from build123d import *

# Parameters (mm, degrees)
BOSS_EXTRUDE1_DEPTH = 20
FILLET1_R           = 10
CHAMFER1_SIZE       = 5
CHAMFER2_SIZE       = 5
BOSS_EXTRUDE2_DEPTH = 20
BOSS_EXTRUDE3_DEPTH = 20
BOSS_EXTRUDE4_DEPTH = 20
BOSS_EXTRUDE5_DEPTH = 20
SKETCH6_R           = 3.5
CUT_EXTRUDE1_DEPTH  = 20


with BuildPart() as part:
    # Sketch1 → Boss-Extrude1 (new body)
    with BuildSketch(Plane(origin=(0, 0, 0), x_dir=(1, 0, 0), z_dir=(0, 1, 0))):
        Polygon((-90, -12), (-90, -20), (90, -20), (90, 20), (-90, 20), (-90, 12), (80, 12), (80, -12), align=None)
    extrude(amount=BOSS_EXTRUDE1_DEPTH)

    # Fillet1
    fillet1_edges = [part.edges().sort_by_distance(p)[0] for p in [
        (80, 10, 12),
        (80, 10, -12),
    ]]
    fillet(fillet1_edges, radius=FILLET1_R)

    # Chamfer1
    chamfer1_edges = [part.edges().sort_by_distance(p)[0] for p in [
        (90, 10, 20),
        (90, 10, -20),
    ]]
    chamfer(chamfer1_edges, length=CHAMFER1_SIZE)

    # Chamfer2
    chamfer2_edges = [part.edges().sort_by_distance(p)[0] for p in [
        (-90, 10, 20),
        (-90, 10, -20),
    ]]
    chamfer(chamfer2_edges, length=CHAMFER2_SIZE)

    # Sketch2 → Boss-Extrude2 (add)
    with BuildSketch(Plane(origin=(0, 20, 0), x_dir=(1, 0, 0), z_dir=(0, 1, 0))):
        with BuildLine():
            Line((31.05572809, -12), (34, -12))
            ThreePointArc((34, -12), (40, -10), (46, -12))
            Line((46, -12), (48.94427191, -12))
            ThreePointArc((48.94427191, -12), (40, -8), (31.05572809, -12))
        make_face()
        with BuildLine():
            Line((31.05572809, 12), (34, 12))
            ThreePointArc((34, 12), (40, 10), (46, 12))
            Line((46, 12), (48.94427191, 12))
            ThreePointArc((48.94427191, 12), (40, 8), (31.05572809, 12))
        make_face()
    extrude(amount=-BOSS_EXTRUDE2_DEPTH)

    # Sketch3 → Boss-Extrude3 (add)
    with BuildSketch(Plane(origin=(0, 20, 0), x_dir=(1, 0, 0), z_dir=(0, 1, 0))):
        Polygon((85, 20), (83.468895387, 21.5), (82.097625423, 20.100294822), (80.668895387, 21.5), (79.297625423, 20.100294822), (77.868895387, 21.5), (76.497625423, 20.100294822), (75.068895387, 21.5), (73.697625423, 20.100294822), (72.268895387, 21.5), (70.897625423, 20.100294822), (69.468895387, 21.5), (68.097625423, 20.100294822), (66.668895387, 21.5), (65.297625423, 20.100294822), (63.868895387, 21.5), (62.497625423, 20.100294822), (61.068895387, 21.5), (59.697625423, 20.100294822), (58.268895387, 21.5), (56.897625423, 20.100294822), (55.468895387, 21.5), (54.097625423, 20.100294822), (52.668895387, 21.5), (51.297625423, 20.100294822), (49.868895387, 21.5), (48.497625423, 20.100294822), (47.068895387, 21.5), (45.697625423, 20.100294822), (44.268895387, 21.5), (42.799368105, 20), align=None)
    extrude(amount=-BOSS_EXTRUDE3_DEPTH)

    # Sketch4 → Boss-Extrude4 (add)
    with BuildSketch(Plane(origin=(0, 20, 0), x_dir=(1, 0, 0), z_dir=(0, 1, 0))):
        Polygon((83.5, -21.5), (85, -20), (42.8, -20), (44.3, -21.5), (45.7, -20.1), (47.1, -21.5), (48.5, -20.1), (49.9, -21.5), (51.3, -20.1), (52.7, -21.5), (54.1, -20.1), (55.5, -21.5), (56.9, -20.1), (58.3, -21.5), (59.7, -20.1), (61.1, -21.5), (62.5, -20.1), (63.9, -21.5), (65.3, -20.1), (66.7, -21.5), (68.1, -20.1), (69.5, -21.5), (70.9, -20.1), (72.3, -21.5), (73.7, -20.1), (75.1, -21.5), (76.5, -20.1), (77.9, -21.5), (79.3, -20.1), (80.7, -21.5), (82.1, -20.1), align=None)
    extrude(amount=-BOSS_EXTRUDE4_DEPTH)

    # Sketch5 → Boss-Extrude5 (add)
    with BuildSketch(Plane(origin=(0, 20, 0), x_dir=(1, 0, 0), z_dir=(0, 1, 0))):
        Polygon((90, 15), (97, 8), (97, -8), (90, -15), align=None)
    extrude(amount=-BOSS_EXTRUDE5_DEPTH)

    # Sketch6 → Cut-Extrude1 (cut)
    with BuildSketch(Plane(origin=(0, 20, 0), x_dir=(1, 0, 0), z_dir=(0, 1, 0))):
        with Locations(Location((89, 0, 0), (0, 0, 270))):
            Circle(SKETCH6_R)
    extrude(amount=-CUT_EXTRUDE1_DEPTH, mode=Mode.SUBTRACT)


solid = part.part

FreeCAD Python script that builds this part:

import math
import FreeCAD as App
import Part
import Sketcher
Q = App.Units.Quantity


def edges_at(feature, points):
    """Names of the edges that pass closest to the given points."""
    edges = feature.Shape.Edges
    near = lambda p: min(range(len(edges)), key=lambda i: edges[i].distToShape(Part.Vertex(*p))[0])
    return sorted({f"Edge{near(p) + 1}" for p in points})


def add_polygon(sketch, points):
    """Adds a closed chain of lines whose ends are joined by coincident constraints."""
    first, n = sketch.GeometryCount, len(points)
    for a, b in zip(points, points[1:] + points[:1]):
        sketch.addGeometry(Part.LineSegment(App.Vector(*a, 0), App.Vector(*b, 0)), False)
    for i in range(n):
        sketch.addConstraint(Sketcher.Constraint("Coincident", first + i, 2, first + (i + 1) % n, 1))

doc = App.newDocument("Part")
body = doc.addObject("PartDesign::Body", "Body")

# Sketch on XZ plane
sketch1 = doc.addObject("Sketcher::SketchObject", "Sketch")
body.addObject(sketch1)
sketch1.AttachmentSupport = (doc.XZ_Plane, [""])
sketch1.MapMode = "FlatFace"
add_polygon(sketch1, [(-90, 12), (-90, 20), (90, 20), (90, -20), (-90, -20), (-90, -12), (80, -12), (80, 12)])  # lines 0-7
sketch1.addConstraint([
    Sketcher.Constraint("Vertical", 0),
    Sketcher.Constraint("Horizontal", 1),
    Sketcher.Constraint("Vertical", 2),
    Sketcher.Constraint("Horizontal", 3),
    Sketcher.Constraint("Vertical", 4),
    Sketcher.Constraint("Horizontal", 5),
    Sketcher.Constraint("Vertical", 6),
    Sketcher.Constraint("Horizontal", 7),
    Sketcher.Constraint("Symmetric", 0, 2, 2, 2, -1, 1),
    Sketcher.Constraint("Symmetric", 4, 2, 7, 2, -1),
    Sketcher.Constraint("DistanceX", 1, 1, 1, 2, Q("180 mm")),
    Sketcher.Constraint("DistanceX", 5, 1, 5, 2, Q("170 mm")),
    Sketcher.Constraint("DistanceY", 0, 1, 0, 2, Q("8 mm")),
    Sketcher.Constraint("DistanceY", 2, 2, 2, 1, Q("40 mm")),
])
pad1 = doc.addObject("PartDesign::Pad", "Pad")
body.addObject(pad1)
pad1.Profile = sketch1
pad1.Length = 20
pad1.Reversed = True
doc.recompute()

fillet = doc.addObject("PartDesign::Fillet", "Fillet")
body.addObject(fillet)
fillet.Base = (pad1, edges_at(pad1, [(80, 10, 12), (80, 10, -12)]))
fillet.Radius = 10
doc.recompute()

chamfer = doc.addObject("PartDesign::Chamfer", "Chamfer")
body.addObject(chamfer)
chamfer.Base = (fillet, edges_at(fillet, [(90, 10, 20), (90, 10, -20)]))
chamfer.Size = 5
doc.recompute()

chamfer2 = doc.addObject("PartDesign::Chamfer", "Chamfer001")
body.addObject(chamfer2)
chamfer2.Base = (chamfer, edges_at(chamfer, [(-90, 10, 20), (-90, 10, -20)]))
chamfer2.Size = 5

# Sketch on XZ plane
sketch2 = doc.addObject("Sketcher::SketchObject", "Sketch001")
body.addObject(sketch2)
sketch2.AttachmentSupport = (doc.XZ_Plane, [""])
sketch2.MapMode = "FlatFace"
sketch2.AttachmentOffset = App.Placement(App.Vector(0, 0, -20), App.Rotation())
sketch2.addGeometry([
    Part.LineSegment(App.Vector(31.1, 12, 0), App.Vector(34, 12, 0)),  # 0
    Part.ArcOfCircle(Part.Circle(App.Vector(40, 20, 0), App.Vector(0, 0, 1), 10), math.radians(-127), math.radians(-53)),  # 1
    Part.LineSegment(App.Vector(46, 12, 0), App.Vector(48.9, 12, 0)),  # 2
    Part.ArcOfCircle(Part.Circle(App.Vector(40, 20, 0), App.Vector(0, 0, 1), 12), math.radians(-138), math.radians(-42)),  # 3
    Part.LineSegment(App.Vector(34, -12, 0), App.Vector(31.1, -12, 0)),  # 4
    Part.ArcOfCircle(Part.Circle(App.Vector(40, -20, 0), App.Vector(0, 0, 1), 12), math.radians(42), math.radians(138)),  # 5
    Part.LineSegment(App.Vector(48.9, -12, 0), App.Vector(46, -12, 0)),  # 6
    Part.ArcOfCircle(Part.Circle(App.Vector(40, -20, 0), App.Vector(0, 0, 1), 10), math.radians(53), math.radians(127)),  # 7
], False)
sketch2.addConstraint([
    Sketcher.Constraint("Coincident", 0, 2, 1, 1),
    Sketcher.Constraint("Coincident", 1, 2, 2, 1),
    Sketcher.Constraint("Coincident", 2, 2, 3, 2),
    Sketcher.Constraint("Coincident", 3, 1, 0, 1),
    Sketcher.Constraint("Coincident", 4, 2, 5, 2),
    Sketcher.Constraint("Coincident", 5, 1, 6, 1),
    Sketcher.Constraint("Coincident", 6, 2, 7, 1),
    Sketcher.Constraint("Coincident", 7, 2, 4, 1),
    Sketcher.Constraint("Horizontal", 0),
    Sketcher.Constraint("Horizontal", 2),
    Sketcher.Constraint("Horizontal", 4),
    Sketcher.Constraint("Horizontal", 6),
    Sketcher.Constraint("Coincident", 3, 3, 1, 3),
    Sketcher.Constraint("Coincident", 7, 3, 5, 3),
    Sketcher.Constraint("Equal", 3, 5),
    Sketcher.Constraint("Equal", 1, 7),
    Sketcher.Constraint("Symmetric", 1, 3, 5, 3, -1),
    Sketcher.Constraint("Horizontal", 0, 2, 1, 2),
    Sketcher.Constraint("Horizontal", 4, 2, 5, 1),
    Sketcher.Constraint("Vertical", 3, 1, 4, 2),
    Sketcher.Constraint("Radius", 1, Q("10 mm")),
    Sketcher.Constraint("Radius", 3, Q("12 mm")),
    Sketcher.Constraint("DistanceX", -1, 1, 1, 3, Q("40 mm")),
    Sketcher.Constraint("DistanceY", -1, 1, 1, 3, Q("20 mm")),
    Sketcher.Constraint("DistanceX", -1, 1, 0, 2, Q("34 mm")),
])
pad2 = doc.addObject("PartDesign::Pad", "Pad001")
body.addObject(pad2)
pad2.Profile = sketch2
pad2.Length = 20

# Sketch on XZ plane
sketch3 = doc.addObject("Sketcher::SketchObject", "Sketch002")
body.addObject(sketch3)
sketch3.AttachmentSupport = (doc.XZ_Plane, [""])
sketch3.MapMode = "FlatFace"
sketch3.AttachmentOffset = App.Placement(App.Vector(0, 0, -20), App.Rotation())
add_polygon(sketch3, [(85, -20), (83.468895, -21.5), (82.097625, -20.100295), (80.668895, -21.5), (79.297625, -20.100295), (77.868895, -21.5), (76.497625, -20.100295), (75.068895, -21.5), (73.697625, -20.100295), (72.268895, -21.5), (70.897625, -20.100295), (69.468895, -21.5), (68.097625, -20.100295), (66.668895, -21.5), (65.297625, -20.100295), (63.868895, -21.5), (62.497625, -20.100295), (61.068895, -21.5), (59.697625, -20.100295), (58.268895, -21.5), (56.897625, -20.100295), (55.468895, -21.5), (54.097625, -20.100295), (52.668895, -21.5), (51.297625, -20.100295), (49.868895, -21.5), (48.497625, -20.100295), (47.068895, -21.5), (45.697625, -20.100295), (44.268895, -21.5), (42.799368, -20)])  # lines 0-30
sketch3.addConstraint([
    Sketcher.Constraint("Horizontal", 30),
    Sketcher.Constraint("Perpendicular", 0, 1),
    Sketcher.Constraint("Perpendicular", 1, 2),
    Sketcher.Constraint("Perpendicular", 2, 3),
    Sketcher.Constraint("Perpendicular", 3, 4),
    Sketcher.Constraint("Perpendicular", 4, 5),
    Sketcher.Constraint("Perpendicular", 5, 6),
    Sketcher.Constraint("Perpendicular", 6, 7),
    Sketcher.Constraint("Perpendicular", 7, 8),
    Sketcher.Constraint("Perpendicular", 8, 9),
    Sketcher.Constraint("Perpendicular", 9, 10),
    Sketcher.Constraint("Perpendicular", 10, 11),
    Sketcher.Constraint("Perpendicular", 11, 12),
    Sketcher.Constraint("Perpendicular", 12, 13),
    Sketcher.Constraint("Perpendicular", 13, 14),
    Sketcher.Constraint("Perpendicular", 14, 15),
    Sketcher.Constraint("Perpendicular", 15, 16),
    Sketcher.Constraint("Perpendicular", 16, 17),
    Sketcher.Constraint("Perpendicular", 17, 18),
    Sketcher.Constraint("Perpendicular", 18, 19),
    Sketcher.Constraint("Perpendicular", 19, 20),
    Sketcher.Constraint("Perpendicular", 20, 21),
    Sketcher.Constraint("Perpendicular", 21, 22),
    Sketcher.Constraint("Perpendicular", 22, 23),
    Sketcher.Constraint("Perpendicular", 23, 24),
    Sketcher.Constraint("Perpendicular", 24, 25),
    Sketcher.Constraint("Perpendicular", 25, 26),
    Sketcher.Constraint("Perpendicular", 26, 27),
    Sketcher.Constraint("Perpendicular", 27, 28),
    Sketcher.Constraint("Perpendicular", 28, 29),
    Sketcher.Constraint("Horizontal", 0, 2, 2, 2),
    Sketcher.Constraint("Horizontal", 1, 2, 3, 2),
    Sketcher.Constraint("Horizontal", 2, 2, 4, 2),
    Sketcher.Constraint("Horizontal", 3, 2, 5, 2),
    Sketcher.Constraint("Horizontal", 4, 2, 6, 2),
    Sketcher.Constraint("Horizontal", 5, 2, 7, 2),
    Sketcher.Constraint("Horizontal", 6, 2, 8, 2),
    Sketcher.Constraint("Horizontal", 7, 2, 9, 2),
    Sketcher.Constraint("Horizontal", 8, 2, 10, 2),
    Sketcher.Constraint("Horizontal", 9, 2, 11, 2),
    Sketcher.Constraint("Horizontal", 10, 2, 12, 2),
    Sketcher.Constraint("Horizontal", 11, 2, 13, 2),
    Sketcher.Constraint("Horizontal", 12, 2, 14, 2),
    Sketcher.Constraint("Horizontal", 13, 2, 15, 2),
    Sketcher.Constraint("Horizontal", 14, 2, 16, 2),
    Sketcher.Constraint("Horizontal", 15, 2, 17, 2),
    Sketcher.Constraint("Horizontal", 16, 2, 18, 2),
    Sketcher.Constraint("Horizontal", 17, 2, 19, 2),
    Sketcher.Constraint("Horizontal", 18, 2, 20, 2),
    Sketcher.Constraint("Horizontal", 19, 2, 21, 2),
    Sketcher.Constraint("Horizontal", 20, 2, 22, 2),
    Sketcher.Constraint("Horizontal", 21, 2, 23, 2),
    Sketcher.Constraint("Horizontal", 22, 2, 24, 2),
    Sketcher.Constraint("Horizontal", 23, 2, 25, 2),
    Sketcher.Constraint("Horizontal", 24, 2, 26, 2),
    Sketcher.Constraint("Horizontal", 25, 2, 27, 2),
    Sketcher.Constraint("Horizontal", 26, 2, 28, 2),
    Sketcher.Constraint("DistanceY", 29, 2, -1, 1, Q("20 mm")),
    Sketcher.Constraint("DistanceX", -1, 1, 30, 2, Q("85 mm")),
    Sketcher.Constraint("DistanceY", 0, 2, -1, 1, Q("21.5 mm")),
    Sketcher.Constraint("DistanceX", 2, 2, 0, 2, Q("2.8 mm")),
    Sketcher.Constraint("DistanceX", 30, 1, 30, 2, Q("42.200632 mm")),
])
pad3 = doc.addObject("PartDesign::Pad", "Pad002")
body.addObject(pad3)
pad3.Profile = sketch3
pad3.Length = 20

# Sketch on XZ plane
sketch4 = doc.addObject("Sketcher::SketchObject", "Sketch003")
body.addObject(sketch4)
sketch4.AttachmentSupport = (doc.XZ_Plane, [""])
sketch4.MapMode = "FlatFace"
sketch4.AttachmentOffset = App.Placement(App.Vector(0, 0, -20), App.Rotation())
add_polygon(sketch4, [(83.5, 21.5), (85, 20), (42.8, 20), (44.3, 21.5), (45.7, 20.1), (47.1, 21.5), (48.5, 20.1), (49.9, 21.5), (51.3, 20.1), (52.7, 21.5), (54.1, 20.1), (55.5, 21.5), (56.9, 20.1), (58.3, 21.5), (59.7, 20.1), (61.1, 21.5), (62.5, 20.1), (63.9, 21.5), (65.3, 20.1), (66.7, 21.5), (68.1, 20.1), (69.5, 21.5), (70.9, 20.1), (72.3, 21.5), (73.7, 20.1), (75.1, 21.5), (76.5, 20.1), (77.9, 21.5), (79.3, 20.1), (80.7, 21.5), (82.1, 20.1)])  # lines 0-30
sketch4.addConstraint([
    Sketcher.Constraint("Horizontal", 1),
    Sketcher.Constraint("Perpendicular", 0, 2),
    Sketcher.Constraint("Perpendicular", 2, 3),
    Sketcher.Constraint("Perpendicular", 3, 4),
    Sketcher.Constraint("Perpendicular", 4, 5),
    Sketcher.Constraint("Perpendicular", 5, 6),
    Sketcher.Constraint("Perpendicular", 6, 7),
    Sketcher.Constraint("Perpendicular", 7, 8),
    Sketcher.Constraint("Perpendicular", 8, 9),
    Sketcher.Constraint("Perpendicular", 9, 10),
    Sketcher.Constraint("Perpendicular", 10, 11),
    Sketcher.Constraint("Perpendicular", 11, 12),
    Sketcher.Constraint("Perpendicular", 12, 13),
    Sketcher.Constraint("Perpendicular", 13, 14),
    Sketcher.Constraint("Perpendicular", 14, 15),
    Sketcher.Constraint("Perpendicular", 15, 16),
    Sketcher.Constraint("Perpendicular", 16, 17),
    Sketcher.Constraint("Perpendicular", 17, 18),
    Sketcher.Constraint("Perpendicular", 18, 19),
    Sketcher.Constraint("Perpendicular", 19, 20),
    Sketcher.Constraint("Perpendicular", 20, 21),
    Sketcher.Constraint("Perpendicular", 21, 22),
    Sketcher.Constraint("Perpendicular", 22, 23),
    Sketcher.Constraint("Perpendicular", 23, 24),
    Sketcher.Constraint("Perpendicular", 24, 25),
    Sketcher.Constraint("Perpendicular", 25, 26),
    Sketcher.Constraint("Perpendicular", 26, 27),
    Sketcher.Constraint("Perpendicular", 27, 28),
    Sketcher.Constraint("Perpendicular", 28, 29),
    Sketcher.Constraint("Perpendicular", 29, 30),
    Sketcher.Constraint("Horizontal", 2, 2, 4, 2),
    Sketcher.Constraint("Horizontal", 3, 2, 5, 2),
    Sketcher.Constraint("Horizontal", 4, 2, 6, 2),
    Sketcher.Constraint("Horizontal", 5, 2, 7, 2),
    Sketcher.Constraint("Horizontal", 6, 2, 8, 2),
    Sketcher.Constraint("Horizontal", 7, 2, 9, 2),
    Sketcher.Constraint("Horizontal", 8, 2, 10, 2),
    Sketcher.Constraint("Horizontal", 9, 2, 11, 2),
    Sketcher.Constraint("Horizontal", 10, 2, 12, 2),
    Sketcher.Constraint("Horizontal", 11, 2, 13, 2),
    Sketcher.Constraint("Horizontal", 12, 2, 14, 2),
    Sketcher.Constraint("Horizontal", 13, 2, 15, 2),
    Sketcher.Constraint("Horizontal", 14, 2, 16, 2),
    Sketcher.Constraint("Horizontal", 15, 2, 17, 2),
    Sketcher.Constraint("Horizontal", 16, 2, 18, 2),
    Sketcher.Constraint("Horizontal", 17, 2, 19, 2),
    Sketcher.Constraint("Horizontal", 18, 2, 20, 2),
    Sketcher.Constraint("Horizontal", 19, 2, 21, 2),
    Sketcher.Constraint("Horizontal", 20, 2, 22, 2),
    Sketcher.Constraint("Horizontal", 21, 2, 23, 2),
    Sketcher.Constraint("Horizontal", 22, 2, 24, 2),
    Sketcher.Constraint("Horizontal", 23, 2, 25, 2),
    Sketcher.Constraint("Horizontal", 24, 2, 26, 2),
    Sketcher.Constraint("Horizontal", 25, 2, 27, 2),
    Sketcher.Constraint("Horizontal", 26, 2, 28, 2),
    Sketcher.Constraint("Horizontal", 27, 2, 29, 2),
    Sketcher.Constraint("Horizontal", 28, 2, 30, 2),
    Sketcher.Constraint("Equal", 0, 2),
    Sketcher.Constraint("DistanceX", 1, 2, 1, 1, Q("42.2 mm")),
    Sketcher.Constraint("DistanceX", -1, 1, 0, 2, Q("85 mm")),
    Sketcher.Constraint("DistanceY", -1, 1, 0, 2, Q("20 mm")),
    Sketcher.Constraint("DistanceX", 2, 2, 7, 2, Q("7 mm")),
])
pad4 = doc.addObject("PartDesign::Pad", "Pad003")
body.addObject(pad4)
pad4.Profile = sketch4
pad4.Length = 20

# Sketch on XZ plane
sketch5 = doc.addObject("Sketcher::SketchObject", "Sketch004")
body.addObject(sketch5)
sketch5.AttachmentSupport = (doc.XZ_Plane, [""])
sketch5.MapMode = "FlatFace"
sketch5.AttachmentOffset = App.Placement(App.Vector(0, 0, -20), App.Rotation())
add_polygon(sketch5, [(97, -8), (90, -15), (90, 15), (97, 8)])  # lines 0-3
sketch5.addConstraint([
    Sketcher.Constraint("Vertical", 1),
    Sketcher.Constraint("Vertical", 3),
    Sketcher.Constraint("Perpendicular", 0, 2),
    Sketcher.Constraint("Equal", 0, 2),
    Sketcher.Constraint("DistanceY", 1, 1, 1, 2, Q("30 mm")),
    Sketcher.Constraint("DistanceY", 3, 2, 3, 1, Q("16 mm")),
    Sketcher.Constraint("DistanceX", -1, 1, 0, 2, Q("90 mm")),
    Sketcher.Constraint("DistanceY", 0, 2, -1, 1, Q("15 mm")),
])
pad5 = doc.addObject("PartDesign::Pad", "Pad004")
body.addObject(pad5)
pad5.Profile = sketch5
pad5.Length = 20

# Sketch on XZ plane
sketch6 = doc.addObject("Sketcher::SketchObject", "Sketch005")
body.addObject(sketch6)
sketch6.AttachmentSupport = (doc.XZ_Plane, [""])
sketch6.MapMode = "FlatFace"
sketch6.AttachmentOffset = App.Placement(App.Vector(0, 0, -20), App.Rotation())
sketch6.addGeometry(Part.Circle(App.Vector(89, 0, 0), App.Vector(0, 0, 1), 3.5), False)
sketch6.addConstraint([
    Sketcher.Constraint("PointOnObject", 0, 3, -1),
    Sketcher.Constraint("Diameter", 0, Q("7 mm")),
    Sketcher.Constraint("DistanceX", -1, 1, 0, 3, Q("89 mm")),
])
pocket1 = doc.addObject("PartDesign::Pocket", "Pocket")
body.addObject(pocket1)
pocket1.Profile = sketch6
pocket1.Length = 20
pocket1.Reversed = True

doc.recompute()
